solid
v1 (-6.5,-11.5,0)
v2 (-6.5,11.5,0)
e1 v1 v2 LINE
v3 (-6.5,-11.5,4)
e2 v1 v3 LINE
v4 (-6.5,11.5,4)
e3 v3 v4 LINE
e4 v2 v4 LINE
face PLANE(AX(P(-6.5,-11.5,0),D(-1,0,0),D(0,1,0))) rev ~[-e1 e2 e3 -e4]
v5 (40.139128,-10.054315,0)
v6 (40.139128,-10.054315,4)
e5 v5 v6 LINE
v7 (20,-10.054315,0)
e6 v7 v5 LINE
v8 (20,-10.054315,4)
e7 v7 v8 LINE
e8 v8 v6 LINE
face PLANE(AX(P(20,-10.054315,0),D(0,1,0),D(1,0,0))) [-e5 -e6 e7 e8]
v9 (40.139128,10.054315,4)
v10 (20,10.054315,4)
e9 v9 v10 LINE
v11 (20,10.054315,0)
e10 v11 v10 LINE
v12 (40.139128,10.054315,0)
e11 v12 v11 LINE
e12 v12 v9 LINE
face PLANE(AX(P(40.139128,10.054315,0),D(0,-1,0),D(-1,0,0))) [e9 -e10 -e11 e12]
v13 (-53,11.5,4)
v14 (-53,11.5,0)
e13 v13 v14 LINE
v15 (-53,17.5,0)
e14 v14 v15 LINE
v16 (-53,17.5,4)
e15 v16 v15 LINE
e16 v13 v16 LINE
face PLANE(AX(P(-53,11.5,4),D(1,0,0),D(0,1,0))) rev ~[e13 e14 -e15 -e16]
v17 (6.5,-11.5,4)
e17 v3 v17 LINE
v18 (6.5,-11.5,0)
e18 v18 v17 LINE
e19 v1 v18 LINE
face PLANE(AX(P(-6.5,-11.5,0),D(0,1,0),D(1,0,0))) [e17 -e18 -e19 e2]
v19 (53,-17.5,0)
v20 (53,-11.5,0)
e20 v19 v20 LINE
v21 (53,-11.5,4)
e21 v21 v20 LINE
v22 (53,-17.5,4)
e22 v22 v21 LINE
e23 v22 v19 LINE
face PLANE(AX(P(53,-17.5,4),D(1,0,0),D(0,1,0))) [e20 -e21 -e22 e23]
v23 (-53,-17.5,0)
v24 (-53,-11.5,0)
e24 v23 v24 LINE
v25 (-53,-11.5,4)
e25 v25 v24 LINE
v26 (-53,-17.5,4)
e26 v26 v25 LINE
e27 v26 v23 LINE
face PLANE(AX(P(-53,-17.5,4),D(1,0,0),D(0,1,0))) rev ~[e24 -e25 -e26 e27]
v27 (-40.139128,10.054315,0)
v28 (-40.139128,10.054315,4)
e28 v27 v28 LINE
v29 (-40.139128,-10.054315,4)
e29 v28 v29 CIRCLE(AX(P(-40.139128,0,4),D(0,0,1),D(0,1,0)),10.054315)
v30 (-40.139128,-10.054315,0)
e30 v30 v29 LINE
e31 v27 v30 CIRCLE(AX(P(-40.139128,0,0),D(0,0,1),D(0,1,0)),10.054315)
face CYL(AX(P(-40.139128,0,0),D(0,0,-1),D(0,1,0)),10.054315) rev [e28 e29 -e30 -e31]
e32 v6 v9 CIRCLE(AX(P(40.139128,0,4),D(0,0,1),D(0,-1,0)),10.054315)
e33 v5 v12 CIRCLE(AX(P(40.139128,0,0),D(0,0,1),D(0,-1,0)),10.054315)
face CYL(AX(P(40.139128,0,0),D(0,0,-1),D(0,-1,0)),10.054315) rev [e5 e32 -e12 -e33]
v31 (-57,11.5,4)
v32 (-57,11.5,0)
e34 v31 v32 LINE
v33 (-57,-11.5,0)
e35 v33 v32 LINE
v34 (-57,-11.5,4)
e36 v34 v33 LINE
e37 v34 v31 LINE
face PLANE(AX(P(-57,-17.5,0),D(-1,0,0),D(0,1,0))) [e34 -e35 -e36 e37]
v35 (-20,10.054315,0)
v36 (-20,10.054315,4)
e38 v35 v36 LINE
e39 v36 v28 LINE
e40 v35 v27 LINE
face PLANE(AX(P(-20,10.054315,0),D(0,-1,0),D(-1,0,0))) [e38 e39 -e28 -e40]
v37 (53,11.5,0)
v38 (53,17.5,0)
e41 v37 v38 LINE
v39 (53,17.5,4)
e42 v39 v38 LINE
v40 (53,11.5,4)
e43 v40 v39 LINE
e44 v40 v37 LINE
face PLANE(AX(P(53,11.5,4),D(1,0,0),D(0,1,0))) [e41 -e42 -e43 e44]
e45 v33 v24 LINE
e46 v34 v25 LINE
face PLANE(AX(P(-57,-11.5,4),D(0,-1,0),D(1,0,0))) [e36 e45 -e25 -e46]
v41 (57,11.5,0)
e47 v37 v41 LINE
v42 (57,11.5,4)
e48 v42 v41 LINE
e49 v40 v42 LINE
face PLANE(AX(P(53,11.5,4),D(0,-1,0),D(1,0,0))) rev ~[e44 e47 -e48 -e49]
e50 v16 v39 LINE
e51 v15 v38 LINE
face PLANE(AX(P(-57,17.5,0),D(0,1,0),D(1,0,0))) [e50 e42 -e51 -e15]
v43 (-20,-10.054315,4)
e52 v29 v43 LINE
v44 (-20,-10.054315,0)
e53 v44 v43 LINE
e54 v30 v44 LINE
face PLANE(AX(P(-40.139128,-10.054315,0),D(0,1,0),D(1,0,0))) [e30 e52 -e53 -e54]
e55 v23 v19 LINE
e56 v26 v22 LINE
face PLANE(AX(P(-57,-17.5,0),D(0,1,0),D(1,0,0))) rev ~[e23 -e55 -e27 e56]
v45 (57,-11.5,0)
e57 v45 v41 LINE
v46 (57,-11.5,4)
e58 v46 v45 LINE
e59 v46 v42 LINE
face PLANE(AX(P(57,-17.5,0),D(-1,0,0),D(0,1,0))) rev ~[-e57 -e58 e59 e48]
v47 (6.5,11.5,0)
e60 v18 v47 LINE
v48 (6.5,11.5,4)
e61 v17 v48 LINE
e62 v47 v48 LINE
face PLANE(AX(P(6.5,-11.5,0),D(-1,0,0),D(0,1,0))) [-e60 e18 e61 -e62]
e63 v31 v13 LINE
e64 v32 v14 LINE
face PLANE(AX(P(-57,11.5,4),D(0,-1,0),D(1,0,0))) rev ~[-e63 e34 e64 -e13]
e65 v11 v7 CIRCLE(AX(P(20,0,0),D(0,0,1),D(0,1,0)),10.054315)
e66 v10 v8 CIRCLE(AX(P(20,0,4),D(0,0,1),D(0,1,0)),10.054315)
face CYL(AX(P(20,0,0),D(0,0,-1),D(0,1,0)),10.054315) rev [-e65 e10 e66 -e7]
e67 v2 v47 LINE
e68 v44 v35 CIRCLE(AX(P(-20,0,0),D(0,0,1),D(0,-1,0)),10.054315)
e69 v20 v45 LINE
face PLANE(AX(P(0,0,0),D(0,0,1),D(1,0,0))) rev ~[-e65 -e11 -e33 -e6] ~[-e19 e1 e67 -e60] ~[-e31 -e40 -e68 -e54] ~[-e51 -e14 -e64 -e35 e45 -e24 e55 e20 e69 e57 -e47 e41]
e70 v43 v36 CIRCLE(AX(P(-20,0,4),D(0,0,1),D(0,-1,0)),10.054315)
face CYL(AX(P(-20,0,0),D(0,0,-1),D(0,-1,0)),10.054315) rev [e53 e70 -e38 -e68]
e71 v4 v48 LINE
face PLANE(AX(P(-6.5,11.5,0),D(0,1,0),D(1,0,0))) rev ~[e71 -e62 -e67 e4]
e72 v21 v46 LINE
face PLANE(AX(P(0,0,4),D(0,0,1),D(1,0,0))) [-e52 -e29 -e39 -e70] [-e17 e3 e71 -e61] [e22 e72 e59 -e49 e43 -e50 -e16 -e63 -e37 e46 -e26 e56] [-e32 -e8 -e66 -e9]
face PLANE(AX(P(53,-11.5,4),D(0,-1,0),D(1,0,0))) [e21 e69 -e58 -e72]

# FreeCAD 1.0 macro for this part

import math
import FreeCAD as App
import Part
import Sketcher
from FreeCAD import Vector
Q = App.Units.Quantity

doc = App.newDocument("Part")
body = doc.addObject("PartDesign::Body", "Body")

# Sketch on XY plane
sketch1 = body.newObject("Sketcher::SketchObject", "Sketch")
sketch1.AttachmentSupport = (doc.getObject("XY_Plane"), [""])
sketch1.MapMode = "FlatFace"
sketch1.addGeometry([
    Part.LineSegment(Vector(-57, 17.5, 0), Vector(-57, -17.5, 0)),  # 0
    Part.LineSegment(Vector(-57, -17.5, 0), Vector(57, -17.5, 0)),  # 1
    Part.LineSegment(Vector(57, -17.5, 0), Vector(57, 17.5, 0)),  # 2
    Part.LineSegment(Vector(57, 17.5, 0), Vector(-57, 17.5, 0)),  # 3
    Part.ArcOfCircle(Part.Circle(Vector(-40.139128, 0, 0), Vector(0, 0, 1), 10.054315), math.radians(90), math.radians(270)),  # 4
    Part.LineSegment(Vector(-40.139128, 10.054315, 0), Vector(-20, 10.054315, 0)),  # 5
    Part.ArcOfCircle(Part.Circle(Vector(-20, 0, 0), Vector(0, 0, 1), 10.054315), math.radians(-90), math.radians(90)),  # 6
    Part.LineSegment(Vector(-20, -10.054315, 0), Vector(-40.139128, -10.054315, 0)),  # 7
    Part.LineSegment(Vector(6.5, -11.5, 0), Vector(-6.5, -11.5, 0)),  # 8
    Part.LineSegment(Vector(-6.5, -11.5, 0), Vector(-6.5, 11.5, 0)),  # 9
    Part.LineSegment(Vector(-6.5, 11.5, 0), Vector(6.5, 11.5, 0)),  # 10
    Part.LineSegment(Vector(6.5, 11.5, 0), Vector(6.5, -11.5, 0)),  # 11
    Part.ArcOfCircle(Part.Circle(Vector(20, 0, 0), Vector(0, 0, 1), 10.054315), math.radians(90), math.radians(270)),  # 12
    Part.LineSegment(Vector(20, 10.054315, 0), Vector(40.139128, 10.054315, 0)),  # 13
    Part.ArcOfCircle(Part.Circle(Vector(40.139128, 0, 0), Vector(0, 0, 1), 10.054315), math.radians(-90), math.radians(90)),  # 14
    Part.LineSegment(Vector(40.139128, -10.054315, 0), Vector(20, -10.054315, 0)),  # 15
], False)
sketch1.addConstraint([
    Sketcher.Constraint("Coincident", 0, 2, 1, 1),
    Sketcher.Constraint("Coincident", 1, 2, 2, 1),
    Sketcher.Constraint("Coincident", 2, 2, 3, 1),
    Sketcher.Constraint("Coincident", 3, 2, 0, 1),
    Sketcher.Constraint("Tangent", 4, 1, 5, 1),
    Sketcher.Constraint("Tangent", 5, 2, 6, 2),
    Sketcher.Constraint("Tangent", 6, 1, 7, 1),
    Sketcher.Constraint("Tangent", 7, 2, 4, 2),
    Sketcher.Constraint("Coincident", 8, 2, 9, 1),
    Sketcher.Constraint("Coincident", 9, 2, 10, 1),
    Sketcher.Constraint("Coincident", 10, 2, 11, 1),
    Sketcher.Constraint("Coincident", 11, 2, 8, 1),
    Sketcher.Constraint("Tangent", 12, 1, 13, 1),
    Sketcher.Constraint("Tangent", 13, 2, 14, 2),
    Sketcher.Constraint("Tangent", 14, 1, 15, 1),
    Sketcher.Constraint("Tangent", 15, 2, 12, 2),
    Sketcher.Constraint("Vertical", 0),
    Sketcher.Constraint("Horizontal", 1),
    Sketcher.Constraint("Vertical", 2),
    Sketcher.Constraint("Horizontal", 3),
    Sketcher.Constraint("Horizontal", 5),
    Sketcher.Constraint("Horizontal", 7),
    Sketcher.Constraint("Horizontal", 8),
    Sketcher.Constraint("Vertical", 9),
    Sketcher.Constraint("Horizontal", 10),
    Sketcher.Constraint("Vertical", 11),
    Sketcher.Constraint("Horizontal", 13),
    Sketcher.Constraint("Horizontal", 15),
    Sketcher.Constraint("Equal", 6, 12),
    Sketcher.Constraint("Symmetric", 6, 3, 12, 3, -1, 1),
    Sketcher.Constraint("Symmetric", 0, 2, 2, 2, -1, 1),
    Sketcher.Constraint("Symmetric", 8, 2, 10, 2, -1, 1),
    Sketcher.Constraint("Symmetric", 4, 3, 14, 3, -2),
    Sketcher.Constraint("DistanceX", 1, 1, 1, 2, Q("114 mm")),
    Sketcher.Constraint("DistanceX", 8, 2, 8, 1, Q("13 mm")),
    Sketcher.Constraint("DistanceY", 0, 2, 0, 1, Q("35 mm")),
    Sketcher.Constraint("DistanceY", 9, 1, 9, 2, Q("23 mm")),
    Sketcher.Constraint("DistanceX", 6, 3, -1, 1, Q("20 mm")),
    Sketcher.Constraint("Radius", 4, Q("10.054315 mm")),
    Sketcher.Constraint("DistanceX", 5, 1, 5, 2, Q("20.139128 mm")),
])
pad1 = body.newObject("PartDesign::Pad", "Pad")
pad1.Profile = sketch1
pad1.Length = 4

# Sketch on XY plane
sketch2 = body.newObject("Sketcher::SketchObject", "Sketch001")
sketch2.AttachmentSupport = (doc.getObject("XY_Plane"), [""])
sketch2.MapMode = "FlatFace"
sketch2.AttachmentOffset = App.Placement(Vector(0, 0, 4), App.Rotation())
sketch2.addGeometry([
    Part.LineSegment(Vector(-57, 17.5, 0), Vector(-57, 11.5, 0)),  # 0
    Part.LineSegment(Vector(-57, 11.5, 0), Vector(-53, 11.5, 0)),  # 1
    Part.LineSegment(Vector(-53, 11.5, 0), Vector(-53, 17.5, 0)),  # 2
    Part.LineSegment(Vector(-53, 17.5, 0), Vector(-57, 17.5, 0)),  # 3
    Part.LineSegment(Vector(-57, -11.5, 0), Vector(-57, -17.5, 0)),  # 4
    Part.LineSegment(Vector(-57, -17.5, 0), Vector(-53, -17.5, 0)),  # 5
    Part.LineSegment(Vector(-53, -17.5, 0), Vector(-53, -11.5, 0)),  # 6
    Part.LineSegment(Vector(-53, -11.5, 0), Vector(-57, -11.5, 0)),  # 7
    Part.LineSegment(Vector(53, -11.5, 0), Vector(53, -17.5, 0)),  # 8
    Part.LineSegment(Vector(53, -17.5, 0), Vector(57, -17.5, 0)),  # 9
    Part.LineSegment(Vector(57, -17.5, 0), Vector(57, -11.5, 0)),  # 10
    Part.LineSegment(Vector(57, -11.5, 0), Vector(53, -11.5, 0)),  # 11
    Part.LineSegment(Vector(53, 17.5, 0), Vector(53, 11.5, 0)),  # 12
    Part.LineSegment(Vector(53, 11.5, 0), Vector(57, 11.5, 0)),  # 13
    Part.LineSegment(Vector(57, 11.5, 0), Vector(57, 17.5, 0)),  # 14
    Part.LineSegment(Vector(57, 17.5, 0), Vector(53, 17.5, 0)),  # 15
], False)
sketch2.addConstraint([
    Sketcher.Constraint("Coincident", 0, 2, 1, 1),
    Sketcher.Constraint("Coincident", 1, 2, 2, 1),
    Sketcher.Constraint("Coincident", 2, 2, 3, 1),
    Sketcher.Constraint("Coincident", 3, 2, 0, 1),
    Sketcher.Constraint("Coincident", 4, 2, 5, 1),
    Sketcher.Constraint("Coincident", 5, 2, 6, 1),
    Sketcher.Constraint("Coincident", 6, 2, 7, 1),
    Sketcher.Constraint("Coincident", 7, 2, 4, 1),
    Sketcher.Constraint("Coincident", 8, 2, 9, 1),
    Sketcher.Constraint("Coincident", 9, 2, 10, 1),
    Sketcher.Constraint("Coincident", 10, 2, 11, 1),
    Sketcher.Constraint("Coincident", 11, 2, 8, 1),
    Sketcher.Constraint("Coincident", 12, 2, 13, 1),
    Sketcher.Constraint("Coincident", 13, 2, 14, 1),
    Sketcher.Constraint("Coincident", 14, 2, 15, 1),
    Sketcher.Constraint("Coincident", 15, 2, 12, 1),
    Sketcher.Constraint("Vertical", 0),
    Sketcher.Constraint("Horizontal", 1),
    Sketcher.Constraint("Vertical", 2),
    Sketcher.Constraint("Horizontal", 3),
    Sketcher.Constraint("Vertical", 4),
    Sketcher.Constraint("Horizontal", 5),
    Sketcher.Constraint("Vertical", 6),
    Sketcher.Constraint("Horizontal", 7),
    Sketcher.Constraint("Vertical", 8),
    Sketcher.Constraint("Horizontal", 9),
    Sketcher.Constraint("Vertical", 10),
    Sketcher.Constraint("Horizontal", 11),
    Sketcher.Constraint("Vertical", 12),
    Sketcher.Constraint("Horizontal", 13),
    Sketcher.Constraint("Vertical", 14),
    Sketcher.Constraint("Horizontal", 15),
    Sketcher.Constraint("Symmetric", 2, 2, 8, 2, -1, 1),
    Sketcher.Constraint("Symmetric", 0, 2, 10, 2, -1, 1),
    Sketcher.Constraint("Symmetric", 6, 2, 12, 2, -1, 1),
    Sketcher.Constraint("Symmetric", 4, 2, 14, 2, -1, 1),
    Sketcher.Constraint("Symmetric", 5, 2, 8, 2, -2),
    Sketcher.Constraint("Symmetric", 7, 2, 10, 2, -2),
    Sketcher.Constraint("DistanceX", 1, 1, 1, 2, Q("4 mm")),
    Sketcher.Constraint("DistanceY", 0, 2, 0, 1, Q("6 mm")),
    Sketcher.Constraint("DistanceX", 0, 2, -1, 1, Q("57 mm")),
    Sketcher.Constraint("DistanceY", 4, 2, 0, 2, Q("29 mm")),
])
pocket1 = body.newObject("PartDesign::Pocket", "Pocket")
pocket1.Profile = sketch2
pocket1.Length = 5

doc.recompute()
